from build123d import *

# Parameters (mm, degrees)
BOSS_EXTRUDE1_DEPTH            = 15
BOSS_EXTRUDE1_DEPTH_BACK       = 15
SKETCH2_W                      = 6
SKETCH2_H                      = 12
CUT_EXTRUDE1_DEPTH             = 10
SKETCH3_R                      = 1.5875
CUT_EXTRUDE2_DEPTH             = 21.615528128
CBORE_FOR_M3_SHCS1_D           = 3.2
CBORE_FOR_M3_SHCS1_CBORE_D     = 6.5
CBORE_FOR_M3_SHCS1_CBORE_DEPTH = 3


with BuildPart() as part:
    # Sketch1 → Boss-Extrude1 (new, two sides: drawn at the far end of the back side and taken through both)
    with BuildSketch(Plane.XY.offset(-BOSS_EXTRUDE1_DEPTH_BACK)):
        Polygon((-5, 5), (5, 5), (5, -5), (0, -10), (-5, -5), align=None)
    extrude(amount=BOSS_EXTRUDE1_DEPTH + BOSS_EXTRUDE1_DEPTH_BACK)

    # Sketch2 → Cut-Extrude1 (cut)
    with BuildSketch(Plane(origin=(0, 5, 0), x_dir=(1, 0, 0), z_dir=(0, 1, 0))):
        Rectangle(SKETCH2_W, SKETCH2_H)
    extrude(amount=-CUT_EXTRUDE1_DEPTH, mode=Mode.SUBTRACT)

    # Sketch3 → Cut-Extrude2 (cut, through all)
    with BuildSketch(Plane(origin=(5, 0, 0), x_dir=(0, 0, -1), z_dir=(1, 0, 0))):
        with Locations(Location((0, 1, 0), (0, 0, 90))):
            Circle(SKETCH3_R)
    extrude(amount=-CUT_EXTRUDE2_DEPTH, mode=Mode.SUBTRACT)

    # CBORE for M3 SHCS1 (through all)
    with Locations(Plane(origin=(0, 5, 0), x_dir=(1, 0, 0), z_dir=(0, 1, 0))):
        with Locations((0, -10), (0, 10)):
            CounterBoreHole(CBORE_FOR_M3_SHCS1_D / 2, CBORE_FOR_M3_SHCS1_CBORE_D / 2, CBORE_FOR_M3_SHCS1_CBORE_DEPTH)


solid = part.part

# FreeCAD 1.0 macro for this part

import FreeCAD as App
import Part
import Sketcher

V = App.Vector


def add_polygon(sketch, points):
    """Adds a closed chain of lines whose ends are joined by coincident constraints."""
    first, n = sketch.GeometryCount, len(points)
    for a, b in zip(points, points[1:] + points[:1]):
        sketch.addGeometry(Part.LineSegment(App.Vector(*a, 0), App.Vector(*b, 0)), False)
    for i in range(n):
        sketch.addConstraint(Sketcher.Constraint("Coincident", first + i, 2, first + (i + 1) % n, 1))

doc = App.newDocument("Part")
body = doc.addObject("PartDesign::Body", "Body")

sketch1 = body.newObject("Sketcher::SketchObject", "Sketch")
sketch1.AttachmentSupport = (doc.getObject("XY_Plane"), [""])
sketch1.MapMode = "FlatFace"
add_polygon(sketch1, [(5, 5), (-5, 5), (-5, -5), (0, -10), (5, -5)])
sketch1.addConstraint(Sketcher.Constraint("Horizontal", 0))
sketch1.addConstraint(Sketcher.Constraint("Vertical", 1))
sketch1.addConstraint(Sketcher.Constraint("Vertical", 4))
sketch1.addConstraint(Sketcher.Constraint("Symmetric", 0, 2, 3, 2, -1, 1))
sketch1.addConstraint(Sketcher.Constraint("PointOnObject", 2, 2, -2))
sketch1.addConstraint(Sketcher.Constraint("Perpendicular", 2, 3))
sketch1.addConstraint(Sketcher.Constraint("Horizontal", 1, 2, 3, 2))
sketch1.addConstraint(Sketcher.Constraint("Equal", 0, 1))
sketch1.addConstraint(Sketcher.Constraint("DistanceX", 0, 2, 0, 1, 10.0))
pad1 = body.newObject("PartDesign::Pad", "Pad")
pad1.Profile = sketch1
pad1.Type = "TwoLengths"
pad1.Length = 15
pad1.Length2 = 15

sketch2 = body.newObject("Sketcher::SketchObject", "Sketch001")
sketch2.AttachmentSupport = (doc.getObject("XZ_Plane"), [""])
sketch2.MapMode = "FlatFace"
sketch2.AttachmentOffset = App.Placement(V(0, 0, -5), App.Rotation())
add_polygon(sketch2, [(-3, -6), (-3, 6), (3, 6), (3, -6)])
sketch2.addConstraint(Sketcher.Constraint("Vertical", 0))
sketch2.addConstraint(Sketcher.Constraint("Horizontal", 1))
sketch2.addConstraint(Sketcher.Constraint("Vertical", 2))
sketch2.addConstraint(Sketcher.Constraint("Horizontal", 3))
sketch2.addConstraint(Sketcher.Constraint("Symmetric", 0, 2, 2, 2, -1, 1))
sketch2.addConstraint(Sketcher.Constraint("DistanceX", 1, 1, 1, 2, 6.0))
sketch2.addConstraint(Sketcher.Constraint("DistanceY", 0, 1, 0, 2, 12.0))
pocket1 = body.newObject("PartDesign::Pocket", "Pocket")
pocket1.Profile = sketch2
pocket1.Length = 10
pocket1.Reversed = True

sketch3 = body.newObject("Sketcher::SketchObject", "Sketch002")
sketch3.AttachmentSupport = (doc.getObject("YZ_Plane"), [""])
sketch3.MapMode = "FlatFace"
sketch3.AttachmentOffset = App.Placement(V(0, 0, 5), App.Rotation())
sketch3.addGeometry(Part.Circle(V(1, 0, 0), V(0, 0, 1), 1.6), False)
sketch3.addConstraint(Sketcher.Constraint("PointOnObject", 0, 3, -1))
sketch3.addConstraint(Sketcher.Constraint("Diameter", 0, 3.175))
sketch3.addConstraint(Sketcher.Constraint("DistanceX", -1, 1, 0, 3, 1.0))
pocket2 = body.newObject("PartDesign::Pocket", "Pocket001")
pocket2.Profile = sketch3
pocket2.Type = "ThroughAll"

sketch4 = body.newObject("Sketcher::SketchObject", "Sketch003")
sketch4.AttachmentSupport = (doc.getObject("XZ_Plane"), [""])
sketch4.MapMode = "FlatFace"
sketch4.AttachmentOffset = App.Placement(V(0, 0, -5), App.Rotation())
sketch4.addGeometry(Part.Circle(V(0, 10, 0), V(0, 0, 1), 1.6), False)
sketch4.addGeometry(Part.Circle(V(0, -10, 0), V(0, 0, 1), 1.6), False)
sketch4.addConstraint(Sketcher.Constraint("Equal", 0, 1))
sketch4.addConstraint(Sketcher.Constraint("Symmetric", 0, 3, 1, 3, -1, 1))
sketch4.addConstraint(Sketcher.Constraint("PointOnObject", 0, 3, -2))
sketch4.addConstraint(Sketcher.Constraint("Diameter", 0, 3.2))
sketch4.addConstraint(Sketcher.Constraint("DistanceY", -1, 1, 0, 3, 10.0))
doc.recompute()
hole = body.newObject("PartDesign::Hole", "Hole")
hole.Profile = sketch4
hole.ThreadType = "None"
hole.Diameter = 3.2
hole.DepthType = "ThroughAll"
hole.HoleCutType = "Counterbore"
hole.HoleCutDiameter = 6.5
hole.HoleCutDepth = 3
hole.Reversed = True

doc.recompute()
